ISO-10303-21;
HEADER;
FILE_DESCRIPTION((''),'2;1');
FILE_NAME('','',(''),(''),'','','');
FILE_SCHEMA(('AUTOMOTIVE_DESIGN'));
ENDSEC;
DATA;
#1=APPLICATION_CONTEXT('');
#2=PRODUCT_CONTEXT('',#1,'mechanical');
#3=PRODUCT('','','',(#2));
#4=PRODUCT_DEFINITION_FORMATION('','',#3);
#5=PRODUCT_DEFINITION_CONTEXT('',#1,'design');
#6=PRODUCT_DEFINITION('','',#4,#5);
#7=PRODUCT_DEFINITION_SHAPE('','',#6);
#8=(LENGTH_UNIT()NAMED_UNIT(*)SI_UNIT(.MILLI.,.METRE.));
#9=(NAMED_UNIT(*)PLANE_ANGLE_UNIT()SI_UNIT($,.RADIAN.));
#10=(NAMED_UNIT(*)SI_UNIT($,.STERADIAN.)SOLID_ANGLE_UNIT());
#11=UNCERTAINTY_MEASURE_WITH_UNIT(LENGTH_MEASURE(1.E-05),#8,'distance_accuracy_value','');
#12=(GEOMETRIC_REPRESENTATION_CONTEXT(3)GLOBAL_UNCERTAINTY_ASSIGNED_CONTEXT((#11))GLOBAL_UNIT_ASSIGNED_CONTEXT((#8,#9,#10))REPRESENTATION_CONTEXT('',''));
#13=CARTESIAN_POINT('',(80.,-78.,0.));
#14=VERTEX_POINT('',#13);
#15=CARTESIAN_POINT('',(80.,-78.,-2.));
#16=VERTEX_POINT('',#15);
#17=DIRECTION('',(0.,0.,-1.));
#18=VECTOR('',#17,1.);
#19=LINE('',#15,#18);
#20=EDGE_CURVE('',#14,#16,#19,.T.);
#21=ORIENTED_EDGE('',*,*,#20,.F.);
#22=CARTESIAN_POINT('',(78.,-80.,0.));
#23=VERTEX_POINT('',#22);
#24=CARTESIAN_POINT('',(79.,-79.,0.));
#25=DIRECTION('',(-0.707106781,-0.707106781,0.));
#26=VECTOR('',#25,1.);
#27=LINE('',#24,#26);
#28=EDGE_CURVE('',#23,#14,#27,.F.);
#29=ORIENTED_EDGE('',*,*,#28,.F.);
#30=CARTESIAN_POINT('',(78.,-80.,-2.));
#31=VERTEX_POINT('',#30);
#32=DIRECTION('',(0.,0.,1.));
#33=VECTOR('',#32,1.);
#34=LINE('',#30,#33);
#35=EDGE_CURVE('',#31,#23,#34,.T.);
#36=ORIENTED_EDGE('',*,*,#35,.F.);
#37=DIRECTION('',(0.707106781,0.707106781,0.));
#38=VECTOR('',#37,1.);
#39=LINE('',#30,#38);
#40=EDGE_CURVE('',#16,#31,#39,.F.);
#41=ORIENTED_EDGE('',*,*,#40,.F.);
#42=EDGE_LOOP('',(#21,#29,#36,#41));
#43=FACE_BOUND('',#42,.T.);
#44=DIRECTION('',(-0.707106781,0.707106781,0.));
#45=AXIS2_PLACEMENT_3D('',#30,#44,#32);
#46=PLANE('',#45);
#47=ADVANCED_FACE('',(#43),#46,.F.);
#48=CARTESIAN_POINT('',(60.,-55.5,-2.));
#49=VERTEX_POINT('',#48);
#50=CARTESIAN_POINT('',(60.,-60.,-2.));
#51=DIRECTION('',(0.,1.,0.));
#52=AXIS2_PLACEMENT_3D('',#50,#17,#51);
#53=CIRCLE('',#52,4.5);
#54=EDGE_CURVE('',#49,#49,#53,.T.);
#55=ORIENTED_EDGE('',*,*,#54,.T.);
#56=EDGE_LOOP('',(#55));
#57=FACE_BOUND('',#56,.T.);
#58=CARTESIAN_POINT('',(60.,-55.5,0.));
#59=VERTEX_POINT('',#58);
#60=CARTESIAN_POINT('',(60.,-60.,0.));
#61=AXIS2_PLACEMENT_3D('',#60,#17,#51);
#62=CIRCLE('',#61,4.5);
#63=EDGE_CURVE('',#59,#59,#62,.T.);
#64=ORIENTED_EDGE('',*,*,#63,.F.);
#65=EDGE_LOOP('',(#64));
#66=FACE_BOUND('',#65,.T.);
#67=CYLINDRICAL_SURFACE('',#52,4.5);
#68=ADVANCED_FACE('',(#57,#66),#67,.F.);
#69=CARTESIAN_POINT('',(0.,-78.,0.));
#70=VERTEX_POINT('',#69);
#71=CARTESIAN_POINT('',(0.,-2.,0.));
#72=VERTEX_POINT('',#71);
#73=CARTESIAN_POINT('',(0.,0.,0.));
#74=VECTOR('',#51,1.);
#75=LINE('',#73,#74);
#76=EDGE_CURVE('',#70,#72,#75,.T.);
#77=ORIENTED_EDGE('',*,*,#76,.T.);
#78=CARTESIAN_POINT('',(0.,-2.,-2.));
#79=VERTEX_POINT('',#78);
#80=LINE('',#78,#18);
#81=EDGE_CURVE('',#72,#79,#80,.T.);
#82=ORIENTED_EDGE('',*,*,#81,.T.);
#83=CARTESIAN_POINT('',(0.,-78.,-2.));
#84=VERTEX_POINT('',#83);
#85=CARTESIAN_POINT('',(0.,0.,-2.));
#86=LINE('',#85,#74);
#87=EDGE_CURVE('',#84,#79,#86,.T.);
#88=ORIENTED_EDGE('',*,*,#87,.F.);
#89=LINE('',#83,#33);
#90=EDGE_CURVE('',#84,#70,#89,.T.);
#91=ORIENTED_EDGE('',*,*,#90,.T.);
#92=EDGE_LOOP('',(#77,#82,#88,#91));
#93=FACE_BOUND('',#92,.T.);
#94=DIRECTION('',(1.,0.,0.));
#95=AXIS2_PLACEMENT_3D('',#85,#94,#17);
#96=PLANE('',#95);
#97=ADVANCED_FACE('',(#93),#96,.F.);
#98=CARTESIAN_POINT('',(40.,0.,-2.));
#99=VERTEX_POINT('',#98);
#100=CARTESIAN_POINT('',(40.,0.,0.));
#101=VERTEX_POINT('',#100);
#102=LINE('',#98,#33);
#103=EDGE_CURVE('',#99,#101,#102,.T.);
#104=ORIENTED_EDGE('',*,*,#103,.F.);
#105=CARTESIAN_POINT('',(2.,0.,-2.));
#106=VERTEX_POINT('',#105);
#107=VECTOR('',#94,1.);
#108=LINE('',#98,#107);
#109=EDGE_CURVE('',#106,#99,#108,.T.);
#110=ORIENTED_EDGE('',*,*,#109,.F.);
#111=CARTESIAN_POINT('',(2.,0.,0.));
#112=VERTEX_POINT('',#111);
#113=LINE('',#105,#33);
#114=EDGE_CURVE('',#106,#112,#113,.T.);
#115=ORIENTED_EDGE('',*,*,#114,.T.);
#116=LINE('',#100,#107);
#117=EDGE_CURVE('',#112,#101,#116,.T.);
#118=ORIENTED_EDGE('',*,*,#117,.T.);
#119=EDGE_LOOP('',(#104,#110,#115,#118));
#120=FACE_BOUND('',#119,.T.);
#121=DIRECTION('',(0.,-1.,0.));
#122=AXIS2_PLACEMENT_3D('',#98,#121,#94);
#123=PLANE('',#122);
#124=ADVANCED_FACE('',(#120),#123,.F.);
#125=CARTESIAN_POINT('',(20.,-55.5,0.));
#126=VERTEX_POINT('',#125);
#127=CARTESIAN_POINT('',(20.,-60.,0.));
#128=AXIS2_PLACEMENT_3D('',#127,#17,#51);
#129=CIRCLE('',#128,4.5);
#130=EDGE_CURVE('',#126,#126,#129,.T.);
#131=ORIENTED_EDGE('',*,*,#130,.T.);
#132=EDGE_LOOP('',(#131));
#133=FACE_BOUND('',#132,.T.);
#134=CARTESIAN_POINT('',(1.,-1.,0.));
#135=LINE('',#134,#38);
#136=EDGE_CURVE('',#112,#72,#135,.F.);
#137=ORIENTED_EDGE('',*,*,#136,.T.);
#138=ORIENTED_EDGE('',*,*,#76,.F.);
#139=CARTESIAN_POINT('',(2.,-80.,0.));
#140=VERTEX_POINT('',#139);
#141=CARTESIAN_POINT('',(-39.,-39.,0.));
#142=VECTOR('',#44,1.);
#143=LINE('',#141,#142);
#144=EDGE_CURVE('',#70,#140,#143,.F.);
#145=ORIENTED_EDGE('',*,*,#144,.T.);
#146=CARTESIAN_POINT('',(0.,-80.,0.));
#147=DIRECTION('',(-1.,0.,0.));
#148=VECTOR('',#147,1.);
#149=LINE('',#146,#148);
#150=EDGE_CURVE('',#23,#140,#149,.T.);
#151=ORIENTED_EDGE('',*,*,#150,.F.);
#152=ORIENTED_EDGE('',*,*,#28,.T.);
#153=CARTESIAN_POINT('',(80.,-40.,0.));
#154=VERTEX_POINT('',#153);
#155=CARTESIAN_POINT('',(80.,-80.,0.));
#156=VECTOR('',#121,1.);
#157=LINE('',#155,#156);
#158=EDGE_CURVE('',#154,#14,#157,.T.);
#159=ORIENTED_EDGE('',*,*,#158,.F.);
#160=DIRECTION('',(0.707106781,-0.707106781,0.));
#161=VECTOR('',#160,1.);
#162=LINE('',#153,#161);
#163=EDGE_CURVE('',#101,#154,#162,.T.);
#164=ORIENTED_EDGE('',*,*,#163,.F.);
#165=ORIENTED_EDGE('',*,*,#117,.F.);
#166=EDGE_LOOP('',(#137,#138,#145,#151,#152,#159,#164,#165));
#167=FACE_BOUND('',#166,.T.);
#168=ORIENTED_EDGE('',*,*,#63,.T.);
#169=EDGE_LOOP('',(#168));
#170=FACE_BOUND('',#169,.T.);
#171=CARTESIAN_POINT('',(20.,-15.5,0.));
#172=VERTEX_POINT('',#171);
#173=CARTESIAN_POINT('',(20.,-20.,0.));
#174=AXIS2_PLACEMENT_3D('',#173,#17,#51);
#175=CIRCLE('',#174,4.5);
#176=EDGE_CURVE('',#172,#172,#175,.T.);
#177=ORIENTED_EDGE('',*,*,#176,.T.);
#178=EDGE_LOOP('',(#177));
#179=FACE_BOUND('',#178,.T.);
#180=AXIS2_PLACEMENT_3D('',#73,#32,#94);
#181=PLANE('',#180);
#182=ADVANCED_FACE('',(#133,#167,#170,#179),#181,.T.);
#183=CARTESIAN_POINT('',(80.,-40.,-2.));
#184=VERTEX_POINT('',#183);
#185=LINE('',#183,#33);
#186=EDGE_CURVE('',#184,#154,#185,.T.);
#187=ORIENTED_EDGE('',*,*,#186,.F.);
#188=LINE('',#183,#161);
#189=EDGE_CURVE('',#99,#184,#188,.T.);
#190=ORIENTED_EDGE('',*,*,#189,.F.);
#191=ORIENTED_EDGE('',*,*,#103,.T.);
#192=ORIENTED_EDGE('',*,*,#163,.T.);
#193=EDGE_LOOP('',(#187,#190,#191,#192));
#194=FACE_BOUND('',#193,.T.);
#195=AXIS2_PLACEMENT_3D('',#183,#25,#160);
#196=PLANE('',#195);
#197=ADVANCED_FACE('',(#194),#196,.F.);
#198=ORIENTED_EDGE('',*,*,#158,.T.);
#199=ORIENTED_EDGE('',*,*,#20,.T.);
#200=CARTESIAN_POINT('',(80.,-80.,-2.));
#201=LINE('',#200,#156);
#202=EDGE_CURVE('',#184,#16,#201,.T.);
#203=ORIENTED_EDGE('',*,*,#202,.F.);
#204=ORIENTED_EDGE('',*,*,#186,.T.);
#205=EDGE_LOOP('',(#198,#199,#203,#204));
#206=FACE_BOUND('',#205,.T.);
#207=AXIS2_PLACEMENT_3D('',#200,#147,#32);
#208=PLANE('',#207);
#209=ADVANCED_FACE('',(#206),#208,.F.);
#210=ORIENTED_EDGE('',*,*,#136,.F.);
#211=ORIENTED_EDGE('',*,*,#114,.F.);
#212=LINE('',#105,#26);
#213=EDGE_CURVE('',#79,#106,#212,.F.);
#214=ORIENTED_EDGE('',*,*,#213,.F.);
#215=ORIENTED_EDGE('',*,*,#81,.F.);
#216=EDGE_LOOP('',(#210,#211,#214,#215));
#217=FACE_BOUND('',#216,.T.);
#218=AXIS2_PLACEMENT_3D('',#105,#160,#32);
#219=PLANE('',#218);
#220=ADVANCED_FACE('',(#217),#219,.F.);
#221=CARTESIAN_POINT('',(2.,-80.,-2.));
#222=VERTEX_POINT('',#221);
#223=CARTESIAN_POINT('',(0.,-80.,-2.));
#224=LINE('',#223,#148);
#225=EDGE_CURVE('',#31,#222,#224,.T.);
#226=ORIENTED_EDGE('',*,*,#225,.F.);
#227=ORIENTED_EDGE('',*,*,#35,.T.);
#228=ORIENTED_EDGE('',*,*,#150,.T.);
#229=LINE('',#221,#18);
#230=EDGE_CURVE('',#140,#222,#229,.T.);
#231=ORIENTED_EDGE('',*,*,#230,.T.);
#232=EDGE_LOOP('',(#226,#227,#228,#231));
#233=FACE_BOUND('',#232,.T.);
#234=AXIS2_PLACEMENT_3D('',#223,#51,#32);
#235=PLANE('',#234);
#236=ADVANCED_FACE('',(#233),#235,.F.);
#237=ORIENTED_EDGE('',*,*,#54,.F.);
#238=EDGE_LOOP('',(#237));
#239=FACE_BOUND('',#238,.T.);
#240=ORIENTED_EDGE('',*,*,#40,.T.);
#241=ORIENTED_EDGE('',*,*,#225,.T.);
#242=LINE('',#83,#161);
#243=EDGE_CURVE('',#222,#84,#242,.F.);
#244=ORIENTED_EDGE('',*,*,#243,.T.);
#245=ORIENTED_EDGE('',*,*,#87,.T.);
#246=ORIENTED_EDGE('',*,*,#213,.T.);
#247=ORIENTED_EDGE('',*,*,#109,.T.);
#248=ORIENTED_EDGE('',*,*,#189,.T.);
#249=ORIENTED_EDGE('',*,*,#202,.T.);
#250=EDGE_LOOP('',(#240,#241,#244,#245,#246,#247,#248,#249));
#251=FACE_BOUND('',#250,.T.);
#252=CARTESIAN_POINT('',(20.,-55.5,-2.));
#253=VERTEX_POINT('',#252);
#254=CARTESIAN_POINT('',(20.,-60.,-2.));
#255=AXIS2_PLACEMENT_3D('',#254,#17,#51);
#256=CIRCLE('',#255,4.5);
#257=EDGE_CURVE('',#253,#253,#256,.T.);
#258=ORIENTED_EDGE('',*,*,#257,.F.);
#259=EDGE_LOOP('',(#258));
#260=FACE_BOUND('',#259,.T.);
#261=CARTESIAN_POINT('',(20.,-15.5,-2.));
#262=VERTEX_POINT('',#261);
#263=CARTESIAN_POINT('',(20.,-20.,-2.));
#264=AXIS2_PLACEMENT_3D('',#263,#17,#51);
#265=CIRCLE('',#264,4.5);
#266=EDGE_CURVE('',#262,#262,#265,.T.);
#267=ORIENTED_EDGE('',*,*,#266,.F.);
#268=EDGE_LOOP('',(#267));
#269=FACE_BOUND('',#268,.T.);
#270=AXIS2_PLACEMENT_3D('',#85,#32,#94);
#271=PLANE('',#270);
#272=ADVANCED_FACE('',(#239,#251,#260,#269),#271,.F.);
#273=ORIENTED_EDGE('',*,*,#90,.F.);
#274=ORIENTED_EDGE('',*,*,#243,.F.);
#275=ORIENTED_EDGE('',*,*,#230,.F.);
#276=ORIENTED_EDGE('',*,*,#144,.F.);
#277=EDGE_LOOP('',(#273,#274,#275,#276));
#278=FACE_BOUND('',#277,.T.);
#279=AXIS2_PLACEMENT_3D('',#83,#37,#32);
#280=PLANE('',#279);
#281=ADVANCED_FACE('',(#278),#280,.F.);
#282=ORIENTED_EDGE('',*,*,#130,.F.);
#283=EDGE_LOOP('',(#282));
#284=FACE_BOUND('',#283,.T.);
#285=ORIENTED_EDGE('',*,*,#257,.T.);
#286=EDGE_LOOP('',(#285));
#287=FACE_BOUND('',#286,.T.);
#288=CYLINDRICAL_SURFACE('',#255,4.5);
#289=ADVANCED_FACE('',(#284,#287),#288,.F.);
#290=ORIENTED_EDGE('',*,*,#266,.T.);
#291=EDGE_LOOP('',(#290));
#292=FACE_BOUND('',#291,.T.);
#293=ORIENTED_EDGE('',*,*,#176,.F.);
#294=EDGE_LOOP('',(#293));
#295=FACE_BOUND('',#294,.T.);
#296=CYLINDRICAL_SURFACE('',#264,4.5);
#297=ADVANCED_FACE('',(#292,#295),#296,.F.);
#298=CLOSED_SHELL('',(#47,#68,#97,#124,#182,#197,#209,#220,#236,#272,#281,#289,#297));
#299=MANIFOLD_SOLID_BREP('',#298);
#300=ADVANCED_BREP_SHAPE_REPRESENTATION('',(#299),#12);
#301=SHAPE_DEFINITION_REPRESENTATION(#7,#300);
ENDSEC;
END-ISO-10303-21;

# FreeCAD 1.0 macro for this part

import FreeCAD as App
import Part
import Sketcher

V = App.Vector
Q = App.Units.Quantity


def edges_at(feature, points):
    """Names of the edges that pass closest to the given points."""
    edges = feature.Shape.Edges
    near = lambda p: min(range(len(edges)), key=lambda i: edges[i].distToShape(Part.Vertex(*p))[0])
    return sorted({f"Edge{near(p) + 1}" for p in points})

doc = App.newDocument("Part")
params = doc.addObject("Spreadsheet::Sheet", "Params")
for row, (alias, value) in enumerate([
    ("sketch1_width", "40 mm"),
    ("sketch1_width2", "80 mm"),
    ("pad1_length", "2 mm"),
    ("sketch2_diameter", "9 mm"),
    ("hole_diameter", "9 mm"),
    ("chamfer_size", "2 mm"),
], start=1):
    params.set(f"A{row}", alias)
    params.set(f"B{row}", "=" + value)
    params.setAlias(f"B{row}", alias)

body = doc.addObject("PartDesign::Body", "Body")

sketch1 = doc.addObject("Sketcher::SketchObject", "Sketch")
body.addObject(sketch1)
sketch1.AttachmentSupport = (doc.XY_Plane, [""])
sketch1.MapMode = "FlatFace"
sketch1.addGeometry([
    Part.LineSegment(V(0, -80, 0), V(0, 0, 0)),
    Part.LineSegment(V(0, 0, 0), V(40, 0, 0)),
    Part.LineSegment(V(40, 0, 0), V(80, -40, 0)),
    Part.LineSegment(V(80, -40, 0), V(80, -80, 0)),
    Part.LineSegment(V(80, -80, 0), V(0, -80, 0)),
], False)
sketch1.addConstraint([
    Sketcher.Constraint("Coincident", 0, 2, 1, 1),
    Sketcher.Constraint("Coincident", 1, 2, 2, 1),
    Sketcher.Constraint("Coincident", 2, 2, 3, 1),
    Sketcher.Constraint("Coincident", 3, 2, 4, 1),
    Sketcher.Constraint("Coincident", 4, 2, 0, 1),
    Sketcher.Constraint("Vertical", 0),
    Sketcher.Constraint("Horizontal", 1),
    Sketcher.Constraint("Vertical", 3),
    Sketcher.Constraint("Horizontal", 4),
    Sketcher.Constraint("Coincident", 0, 2, -1, 1),
    Sketcher.Constraint("Equal", 4, 0),
    Sketcher.Constraint("Equal", 1, 3),
    Sketcher.Constraint("DistanceX", 1, 1, 1, 2, Q("40 mm")),
    Sketcher.Constraint("DistanceX", 4, 2, 4, 1, Q("80 mm")),
])
sketch1.setExpression("Constraints[12]", "Params.sketch1_width")
sketch1.setExpression("Constraints[13]", "Params.sketch1_width2")
pad1 = doc.addObject("PartDesign::Pad", "Pad")
body.addObject(pad1)
pad1.Profile = sketch1
pad1.setExpression("Length", "Params.pad1_length")
pad1.Reversed = True

sketch2 = doc.addObject("Sketcher::SketchObject", "Sketch001")
body.addObject(sketch2)
sketch2.AttachmentSupport = (doc.XY_Plane, [""])
sketch2.MapMode = "FlatFace"
sketch2.AttachmentOffset = App.Placement(V(0, 0, -2), App.Rotation())
sketch2.addGeometry([
    Part.Circle(V(20, -60, 0), V(0, 0, 1), 4.5),
    Part.Circle(V(20, -20, 0), V(0, 0, 1), 4.5),
    Part.Circle(V(60, -60, 0), V(0, 0, 1), 4.5),
], False)
sketch2.addConstraint([
    Sketcher.Constraint("Equal", 0, 1),
    Sketcher.Constraint("Equal", 1, 2),
    Sketcher.Constraint("Horizontal", 0, 3, 2, 3),
    Sketcher.Constraint("Vertical", 0, 3, 1, 3),
    Sketcher.Constraint("Diameter", 0, Q("9 mm")),
    Sketcher.Constraint("DistanceX", -1, 1, 0, 3, Q("20 mm")),
    Sketcher.Constraint("DistanceY", 0, 3, -1, 1, Q("60 mm")),
    Sketcher.Constraint("DistanceY", 1, 3, -1, 1, Q("20 mm")),
    Sketcher.Constraint("DistanceX", -1, 1, 2, 3, Q("60 mm")),
])
sketch2.setExpression("Constraints[4]", "Params.sketch2_diameter")
doc.recompute()
hole = doc.addObject("PartDesign::Hole", "Hole")
body.addObject(hole)
hole.Profile = sketch2
hole.ThreadType = "None"
hole.setExpression("Diameter", "Params.hole_diameter")
hole.DepthType = "ThroughAll"
hole.Reversed = True
doc.recompute()

chamfer = doc.addObject("PartDesign::Chamfer", "Chamfer")
body.addObject(chamfer)
chamfer.Base = (hole, edges_at(hole, [(0, 0, -1), (0, -80, -1), (80, -80, -1)]))
chamfer.setExpression("Size", "Params.chamfer_size")

doc.recompute()
